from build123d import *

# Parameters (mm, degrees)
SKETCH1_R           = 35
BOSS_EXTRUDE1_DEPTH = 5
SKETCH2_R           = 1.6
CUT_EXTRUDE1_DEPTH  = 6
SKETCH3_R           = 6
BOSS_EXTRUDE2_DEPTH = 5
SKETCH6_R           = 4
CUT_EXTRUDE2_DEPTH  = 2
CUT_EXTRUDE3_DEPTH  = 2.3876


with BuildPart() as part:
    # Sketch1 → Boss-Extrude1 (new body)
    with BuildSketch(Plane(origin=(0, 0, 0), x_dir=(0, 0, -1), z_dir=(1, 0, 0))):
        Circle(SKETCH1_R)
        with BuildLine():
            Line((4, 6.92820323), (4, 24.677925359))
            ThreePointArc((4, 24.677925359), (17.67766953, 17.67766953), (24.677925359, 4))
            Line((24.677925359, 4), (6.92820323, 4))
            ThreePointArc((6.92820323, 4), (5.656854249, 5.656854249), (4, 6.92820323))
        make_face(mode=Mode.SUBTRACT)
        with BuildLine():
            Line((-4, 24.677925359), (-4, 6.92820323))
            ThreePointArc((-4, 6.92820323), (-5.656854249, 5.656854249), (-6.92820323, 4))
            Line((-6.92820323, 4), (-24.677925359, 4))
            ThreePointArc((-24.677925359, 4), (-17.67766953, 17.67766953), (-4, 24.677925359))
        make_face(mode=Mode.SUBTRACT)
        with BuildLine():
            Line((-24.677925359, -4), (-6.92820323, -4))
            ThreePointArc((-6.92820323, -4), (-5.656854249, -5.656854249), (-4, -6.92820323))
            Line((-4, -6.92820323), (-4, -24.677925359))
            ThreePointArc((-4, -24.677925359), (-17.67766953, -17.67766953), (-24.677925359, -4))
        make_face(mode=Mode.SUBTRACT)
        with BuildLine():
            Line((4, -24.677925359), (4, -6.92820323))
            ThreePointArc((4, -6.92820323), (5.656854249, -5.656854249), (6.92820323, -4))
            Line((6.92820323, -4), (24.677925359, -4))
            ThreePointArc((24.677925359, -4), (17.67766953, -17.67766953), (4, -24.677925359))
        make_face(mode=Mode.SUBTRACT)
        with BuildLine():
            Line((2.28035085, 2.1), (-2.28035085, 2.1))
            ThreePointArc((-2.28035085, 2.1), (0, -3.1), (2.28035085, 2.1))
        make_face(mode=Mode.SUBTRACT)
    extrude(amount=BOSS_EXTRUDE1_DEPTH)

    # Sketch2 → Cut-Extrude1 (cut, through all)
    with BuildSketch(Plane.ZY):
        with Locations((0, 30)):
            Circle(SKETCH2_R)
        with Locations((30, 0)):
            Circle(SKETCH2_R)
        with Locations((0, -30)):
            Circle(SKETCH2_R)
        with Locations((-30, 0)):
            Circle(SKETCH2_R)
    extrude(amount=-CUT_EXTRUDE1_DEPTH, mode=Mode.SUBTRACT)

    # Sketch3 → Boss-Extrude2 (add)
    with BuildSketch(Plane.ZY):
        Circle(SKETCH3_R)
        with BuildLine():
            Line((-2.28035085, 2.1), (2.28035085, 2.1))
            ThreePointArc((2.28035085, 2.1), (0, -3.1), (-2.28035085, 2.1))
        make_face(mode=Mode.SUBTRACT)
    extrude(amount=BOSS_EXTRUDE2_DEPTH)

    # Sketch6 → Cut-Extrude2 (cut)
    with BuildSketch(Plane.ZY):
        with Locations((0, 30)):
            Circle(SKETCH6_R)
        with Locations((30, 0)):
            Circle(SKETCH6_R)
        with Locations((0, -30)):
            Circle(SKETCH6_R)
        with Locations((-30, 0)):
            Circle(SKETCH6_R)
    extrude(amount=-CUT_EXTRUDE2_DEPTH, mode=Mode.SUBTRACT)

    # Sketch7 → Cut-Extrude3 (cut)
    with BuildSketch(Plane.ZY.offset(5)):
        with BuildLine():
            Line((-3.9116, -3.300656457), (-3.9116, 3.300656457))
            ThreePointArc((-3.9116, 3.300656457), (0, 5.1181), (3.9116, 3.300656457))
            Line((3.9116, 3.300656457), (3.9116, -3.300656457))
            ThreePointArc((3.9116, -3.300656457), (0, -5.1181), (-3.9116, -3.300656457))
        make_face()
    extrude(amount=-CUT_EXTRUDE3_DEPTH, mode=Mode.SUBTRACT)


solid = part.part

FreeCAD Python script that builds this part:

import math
import FreeCAD as App
import Part
import Sketcher

V = App.Vector
Q = App.Units.Quantity

doc = App.newDocument("Part")
params = doc.addObject("Spreadsheet::Sheet", "Params")
for row, (alias, value) in enumerate([
    ("sketch1_diameter", "70 mm"),
    ("sketch1_radius", "25 mm"),
    ("sketch1_radius2", "8 mm"),
    ("sketch1_radius3", "3.1 mm"),
    ("pad1_length", "5 mm"),
    ("sketch2_diameter", "3.2 mm"),
    ("sketch3_diameter", "12 mm"),
    ("sketch3_radius", "3.1 mm"),
    ("pad2_length", "5 mm"),
    ("sketch4_diameter", "8 mm"),
    ("pocket2_length", "2 mm"),
    ("pocket3_length", "2.3876 mm"),
], start=1):
    params.set(f"A{row}", alias)
    params.set(f"B{row}", "=" + value)
    params.setAlias(f"B{row}", alias)

body = doc.addObject("PartDesign::Body", "Body")

sketch1 = body.newObject("Sketcher::SketchObject", "Sketch")
sketch1.AttachmentSupport = (doc.getObject("YZ_Plane"), [""])
sketch1.MapMode = "FlatFace"
sketch1.addGeometry([
    Part.Circle(V(0, 0, 0), V(0, 0, 1), 35),
    Part.ArcOfCircle(Part.Circle(V(0, 0, 0), V(0, 0, 1), 25), math.radians(99), math.radians(171)),
    Part.LineSegment(V(-4, 24.7, 0), V(-4, 6.9, 0)),
    Part.ArcOfCircle(Part.Circle(V(0, 0, 0), V(0, 0, 1), 8), math.radians(120), math.radians(150)),
    Part.LineSegment(V(-6.9, 4, 0), V(-24.7, 4, 0)),
    Part.LineSegment(V(2.1, 2.3, 0), V(2.1, -2.3, 0)),
    Part.ArcOfCircle(Part.Circle(V(0, 0, 0), V(0, 0, 1), 3.1), math.radians(47), math.radians(313)),
    Part.ArcOfCircle(Part.Circle(V(0, 0, 0), V(0, 0, 1), 25), math.radians(-171), math.radians(-99)),
    Part.LineSegment(V(-24.7, -4, 0), V(-6.9, -4, 0)),
    Part.ArcOfCircle(Part.Circle(V(0, 0, 0), V(0, 0, 1), 8), math.radians(-150), math.radians(-120)),
    Part.LineSegment(V(-4, -6.9, 0), V(-4, -24.7, 0)),
    Part.ArcOfCircle(Part.Circle(V(0, 0, 0), V(0, 0, 1), 25), math.radians(9), math.radians(81)),
    Part.LineSegment(V(24.7, 4, 0), V(6.9, 4, 0)),
    Part.ArcOfCircle(Part.Circle(V(0, 0, 0), V(0, 0, 1), 8), math.radians(30), math.radians(60)),
    Part.LineSegment(V(4, 6.9, 0), V(4, 24.7, 0)),
    Part.ArcOfCircle(Part.Circle(V(0, 0, 0), V(0, 0, 1), 8), math.radians(-60), math.radians(-30)),
    Part.LineSegment(V(6.9, -4, 0), V(24.7, -4, 0)),
    Part.ArcOfCircle(Part.Circle(V(0, 0, 0), V(0, 0, 1), 25), math.radians(-81), math.radians(-9)),
    Part.LineSegment(V(4, -24.7, 0), V(4, -6.9, 0)),
], False)
sketch1.addConstraint([
    Sketcher.Constraint("Coincident", 1, 1, 2, 1),
    Sketcher.Constraint("Coincident", 2, 2, 3, 1),
    Sketcher.Constraint("Coincident", 3, 2, 4, 1),
    Sketcher.Constraint("Coincident", 4, 2, 1, 2),
    Sketcher.Constraint("Coincident", 5, 1, 6, 1),
    Sketcher.Constraint("Coincident", 6, 2, 5, 2),
    Sketcher.Constraint("Coincident", 7, 1, 8, 1),
    Sketcher.Constraint("Coincident", 8, 2, 9, 1),
    Sketcher.Constraint("Coincident", 9, 2, 10, 1),
    Sketcher.Constraint("Coincident", 10, 2, 7, 2),
    Sketcher.Constraint("Coincident", 11, 1, 12, 1),
    Sketcher.Constraint("Coincident", 12, 2, 13, 1),
    Sketcher.Constraint("Coincident", 13, 2, 14, 1),
    Sketcher.Constraint("Coincident", 14, 2, 11, 2),
    Sketcher.Constraint("Coincident", 15, 2, 16, 1),
    Sketcher.Constraint("Coincident", 16, 2, 17, 2),
    Sketcher.Constraint("Coincident", 17, 1, 18, 1),
    Sketcher.Constraint("Coincident", 18, 2, 15, 1),
    Sketcher.Constraint("Vertical", 2),
    Sketcher.Constraint("Horizontal", 4),
    Sketcher.Constraint("Vertical", 5),
    Sketcher.Constraint("Horizontal", 8),
    Sketcher.Constraint("Vertical", 10),
    Sketcher.Constraint("Horizontal", 12),
    Sketcher.Constraint("Vertical", 14),
    Sketcher.Constraint("Horizontal", 16),
    Sketcher.Constraint("Vertical", 18),
    Sketcher.Constraint("Coincident", 0, 3, -1, 1),
    Sketcher.Constraint("Coincident", 1, 3, -1, 1),
    Sketcher.Constraint("Coincident", 3, 3, -1, 1),
    Sketcher.Constraint("Coincident", 6, 3, -1, 1),
    Sketcher.Constraint("Coincident", 7, 3, -1, 1),
    Sketcher.Constraint("Coincident", 9, 3, -1, 1),
    Sketcher.Constraint("Coincident", 11, 3, -1, 1),
    Sketcher.Constraint("Coincident", 13, 3, -1, 1),
    Sketcher.Constraint("Coincident", 15, 3, -1, 1),
    Sketcher.Constraint("Coincident", 17, 3, -1, 1),
    Sketcher.Constraint("Equal", 1, 7),
    Sketcher.Constraint("Equal", 3, 9),
    Sketcher.Constraint("Equal", 7, 11),
    Sketcher.Constraint("Equal", 9, 13),
    Sketcher.Constraint("Equal", 13, 15),
    Sketcher.Constraint("Equal", 11, 17),
    Sketcher.Constraint("Horizontal", 4, 2, 11, 1),
    Sketcher.Constraint("Horizontal", 2, 2, 13, 2),
    Sketcher.Constraint("Horizontal", 8, 2, 15, 2),
    Sketcher.Constraint("Horizontal", 10, 2, 17, 1),
    Sketcher.Constraint("Vertical", 4, 2, 7, 1),
    Sketcher.Constraint("Vertical", 2, 2, 9, 2),
    Sketcher.Constraint("Equal", 16, 2),
    Sketcher.Constraint("Diameter", 0, Q("70 mm")),
    Sketcher.Constraint("Radius", 1, Q("25 mm")),
    Sketcher.Constraint("Radius", 3, Q("8 mm")),
    Sketcher.Constraint("Radius", 6, Q("3.1 mm")),
    Sketcher.Constraint("DistanceX", 1, 1, -1, 1, Q("4 mm")),
    Sketcher.Constraint("DistanceX", -1, 1, 5, 1, Q("2.1 mm")),
])
sketch1.setExpression("Constraints[50]", "Params.sketch1_diameter")
sketch1.setExpression("Constraints[51]", "Params.sketch1_radius")
sketch1.setExpression("Constraints[52]", "Params.sketch1_radius2")
sketch1.setExpression("Constraints[53]", "Params.sketch1_radius3")
pad1 = body.newObject("PartDesign::Pad", "Pad")
pad1.Profile = sketch1
pad1.setExpression("Length", "Params.pad1_length")

sketch2 = body.newObject("Sketcher::SketchObject", "Sketch001")
sketch2.AttachmentSupport = (doc.getObject("YZ_Plane"), [""])
sketch2.MapMode = "FlatFace"
sketch2.addGeometry([
    Part.Circle(V(30, 0, 0), V(0, 0, 1), 1.6),
    Part.Circle(V(0, 30, 0), V(0, 0, 1), 1.6),
    Part.Circle(V(-30, 0, 0), V(0, 0, 1), 1.6),
    Part.Circle(V(0, -30, 0), V(0, 0, 1), 1.6),
], False)
sketch2.addConstraint([
    Sketcher.Constraint("Equal", 0, 1),
    Sketcher.Constraint("Equal", 1, 2),
    Sketcher.Constraint("Equal", 2, 3),
    Sketcher.Constraint("Symmetric", 0, 3, 2, 3, -1, 1),
    Sketcher.Constraint("Symmetric", 1, 3, 3, 3, -1, 1),
    Sketcher.Constraint("PointOnObject", 0, 3, -1),
    Sketcher.Constraint("PointOnObject", 1, 3, -2),
    Sketcher.Constraint("Diameter", 0, Q("3.2 mm")),
    Sketcher.Constraint("DistanceX", -1, 1, 0, 3, Q("30 mm")),
    Sketcher.Constraint("DistanceY", -1, 1, 1, 3, Q("30 mm")),
])
sketch2.setExpression("Constraints[7]", "Params.sketch2_diameter")
pocket1 = body.newObject("PartDesign::Pocket", "Pocket")
pocket1.Profile = sketch2
pocket1.Type = "ThroughAll"
pocket1.Reversed = True

sketch3 = body.newObject("Sketcher::SketchObject", "Sketch002")
sketch3.AttachmentSupport = (doc.getObject("YZ_Plane"), [""])
sketch3.MapMode = "FlatFace"
sketch3.addGeometry([
    Part.Circle(V(0, 0, 0), V(0, 0, 1), 6),
    Part.ArcOfCircle(Part.Circle(V(0, 0, 0), V(0, 0, 1), 3.1), math.radians(47), math.radians(313)),
    Part.LineSegment(V(2.1, -2.3, 0), V(2.1, 2.3, 0)),
], False)
sketch3.addConstraint([
    Sketcher.Constraint("Coincident", 1, 1, 2, 2),
    Sketcher.Constraint("Coincident", 2, 1, 1, 2),
    Sketcher.Constraint("Vertical", 2),
    Sketcher.Constraint("Coincident", 0, 3, -1, 1),
    Sketcher.Constraint("Coincident", 1, 3, -1, 1),
    Sketcher.Constraint("Diameter", 0, Q("12 mm")),
    Sketcher.Constraint("Radius", 1, Q("3.1 mm")),
    Sketcher.Constraint("DistanceX", -1, 1, 1, 1, Q("2.1 mm")),
])
sketch3.setExpression("Constraints[5]", "Params.sketch3_diameter")
sketch3.setExpression("Constraints[6]", "Params.sketch3_radius")
pad2 = body.newObject("PartDesign::Pad", "Pad001")
pad2.Profile = sketch3
pad2.setExpression("Length", "Params.pad2_length")
pad2.Reversed = True

sketch4 = body.newObject("Sketcher::SketchObject", "Sketch003")
sketch4.AttachmentSupport = (doc.getObject("YZ_Plane"), [""])
sketch4.MapMode = "FlatFace"
sketch4.addGeometry([
    Part.Circle(V(30, 0, 0), V(0, 0, 1), 4),
    Part.Circle(V(0, 30, 0), V(0, 0, 1), 4),
    Part.Circle(V(-30, 0, 0), V(0, 0, 1), 4),
    Part.Circle(V(0, -30, 0), V(0, 0, 1), 4),
], False)
sketch4.addConstraint([
    Sketcher.Constraint("Equal", 0, 1),
    Sketcher.Constraint("Equal", 1, 2),
    Sketcher.Constraint("Equal", 2, 3),
    Sketcher.Constraint("Symmetric", 0, 3, 2, 3, -1, 1),
    Sketcher.Constraint("Symmetric", 1, 3, 3, 3, -1, 1),
    Sketcher.Constraint("PointOnObject", 0, 3, -1),
    Sketcher.Constraint("PointOnObject", 1, 3, -2),
    Sketcher.Constraint("Diameter", 0, Q("8 mm")),
    Sketcher.Constraint("DistanceX", -1, 1, 0, 3, Q("30 mm")),
    Sketcher.Constraint("DistanceY", -1, 1, 1, 3, Q("30 mm")),
])
sketch4.setExpression("Constraints[7]", "Params.sketch4_diameter")
pocket2 = body.newObject("PartDesign::Pocket", "Pocket001")
pocket2.Profile = sketch4
pocket2.setExpression("Length", "Params.pocket2_length")
pocket2.Reversed = True

sketch5 = body.newObject("Sketcher::SketchObject", "Sketch004")
sketch5.AttachmentSupport = (doc.getObject("YZ_Plane"), [""])
sketch5.MapMode = "FlatFace"
sketch5.AttachmentOffset = App.Placement(V(0, 0, -5), App.Rotation())
sketch5.addGeometry([
    Part.LineSegment(V(3, -4, 0), V(-3, -4, 0)),
    Part.ArcOfCircle(Part.Circle(V(0, 0, 0), V(0, 0, 1), 5), math.radians(130), math.radians(230)),
    Part.LineSegment(V(-3, 4, 0), V(3, 4, 0)),
    Part.ArcOfCircle(Part.Circle(V(0, 0, 0), V(0, 0, 1), 5), math.radians(-50), math.radians(50)),
], False)
sketch5.addConstraint([
    Sketcher.Constraint("Coincident", 0, 2, 1, 2),
    Sketcher.Constraint("Coincident", 1, 1, 2, 1),
    Sketcher.Constraint("Coincident", 2, 2, 3, 2),
    Sketcher.Constraint("Coincident", 3, 1, 0, 1),
    Sketcher.Constraint("Horizontal", 0),
    Sketcher.Constraint("Horizontal", 2),
    Sketcher.Constraint("Coincident", 1, 3, -1, 1),
    Sketcher.Constraint("Coincident", 3, 3, -1, 1),
    Sketcher.Constraint("Equal", 1, 3),
    Sketcher.Constraint("Vertical", 0, 2, 1, 1),
    Sketcher.Constraint("Radius", 1, Q("5.1181 mm")),
    Sketcher.Constraint("DistanceY", 0, 2, -1, 1, Q("3.9116 mm")),
])
pocket3 = body.newObject("PartDesign::Pocket", "Pocket002")
pocket3.Profile = sketch5
pocket3.setExpression("Length", "Params.pocket3_length")
pocket3.Reversed = True

doc.recompute()
